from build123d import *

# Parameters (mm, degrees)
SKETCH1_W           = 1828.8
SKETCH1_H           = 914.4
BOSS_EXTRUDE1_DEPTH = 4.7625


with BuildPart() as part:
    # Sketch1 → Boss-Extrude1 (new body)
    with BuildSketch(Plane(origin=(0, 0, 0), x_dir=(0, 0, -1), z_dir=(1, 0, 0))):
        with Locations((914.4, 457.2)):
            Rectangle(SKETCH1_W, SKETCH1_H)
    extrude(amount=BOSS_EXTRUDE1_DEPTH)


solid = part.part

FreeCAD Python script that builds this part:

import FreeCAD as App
import Part
import Sketcher

V = App.Vector
Q = App.Units.Quantity

doc = App.newDocument("Part")
body = doc.addObject("PartDesign::Body", "Body")

sketch1 = body.newObject("Sketcher::SketchObject", "Sketch")
sketch1.AttachmentSupport = (doc.getObject("YZ_Plane"), [""])
sketch1.MapMode = "FlatFace"
sketch1.addGeometry([
    Part.LineSegment(V(914.4, 0, 0), V(0, 0, 0)),
    Part.LineSegment(V(0, 0, 0), V(0, -1828.8, 0)),
    Part.LineSegment(V(0, -1828.8, 0), V(914.4, -1828.8, 0)),
    Part.LineSegment(V(914.4, -1828.8, 0), V(914.4, 0, 0)),
], False)
sketch1.addConstraint([
    Sketcher.Constraint("Coincident", 0, 2, 1, 1),
    Sketcher.Constraint("Coincident", 1, 2, 2, 1),
    Sketcher.Constraint("Coincident", 2, 2, 3, 1),
    Sketcher.Constraint("Coincident", 3, 2, 0, 1),
    Sketcher.Constraint("Horizontal", 0),
    Sketcher.Constraint("Vertical", 1),
    Sketcher.Constraint("Horizontal", 2),
    Sketcher.Constraint("Vertical", 3),
    Sketcher.Constraint("Coincident", 0, 2, -1, 1),
    Sketcher.Constraint("DistanceX", 0, 2, 0, 1, Q("36 in")),
    Sketcher.Constraint("DistanceY", 1, 2, 1, 1, Q("72 in")),
])
pad1 = body.newObject("PartDesign::Pad", "Pad")
pad1.Profile = sketch1
pad1.Length = Q("0.1875 in")

doc.recompute()
